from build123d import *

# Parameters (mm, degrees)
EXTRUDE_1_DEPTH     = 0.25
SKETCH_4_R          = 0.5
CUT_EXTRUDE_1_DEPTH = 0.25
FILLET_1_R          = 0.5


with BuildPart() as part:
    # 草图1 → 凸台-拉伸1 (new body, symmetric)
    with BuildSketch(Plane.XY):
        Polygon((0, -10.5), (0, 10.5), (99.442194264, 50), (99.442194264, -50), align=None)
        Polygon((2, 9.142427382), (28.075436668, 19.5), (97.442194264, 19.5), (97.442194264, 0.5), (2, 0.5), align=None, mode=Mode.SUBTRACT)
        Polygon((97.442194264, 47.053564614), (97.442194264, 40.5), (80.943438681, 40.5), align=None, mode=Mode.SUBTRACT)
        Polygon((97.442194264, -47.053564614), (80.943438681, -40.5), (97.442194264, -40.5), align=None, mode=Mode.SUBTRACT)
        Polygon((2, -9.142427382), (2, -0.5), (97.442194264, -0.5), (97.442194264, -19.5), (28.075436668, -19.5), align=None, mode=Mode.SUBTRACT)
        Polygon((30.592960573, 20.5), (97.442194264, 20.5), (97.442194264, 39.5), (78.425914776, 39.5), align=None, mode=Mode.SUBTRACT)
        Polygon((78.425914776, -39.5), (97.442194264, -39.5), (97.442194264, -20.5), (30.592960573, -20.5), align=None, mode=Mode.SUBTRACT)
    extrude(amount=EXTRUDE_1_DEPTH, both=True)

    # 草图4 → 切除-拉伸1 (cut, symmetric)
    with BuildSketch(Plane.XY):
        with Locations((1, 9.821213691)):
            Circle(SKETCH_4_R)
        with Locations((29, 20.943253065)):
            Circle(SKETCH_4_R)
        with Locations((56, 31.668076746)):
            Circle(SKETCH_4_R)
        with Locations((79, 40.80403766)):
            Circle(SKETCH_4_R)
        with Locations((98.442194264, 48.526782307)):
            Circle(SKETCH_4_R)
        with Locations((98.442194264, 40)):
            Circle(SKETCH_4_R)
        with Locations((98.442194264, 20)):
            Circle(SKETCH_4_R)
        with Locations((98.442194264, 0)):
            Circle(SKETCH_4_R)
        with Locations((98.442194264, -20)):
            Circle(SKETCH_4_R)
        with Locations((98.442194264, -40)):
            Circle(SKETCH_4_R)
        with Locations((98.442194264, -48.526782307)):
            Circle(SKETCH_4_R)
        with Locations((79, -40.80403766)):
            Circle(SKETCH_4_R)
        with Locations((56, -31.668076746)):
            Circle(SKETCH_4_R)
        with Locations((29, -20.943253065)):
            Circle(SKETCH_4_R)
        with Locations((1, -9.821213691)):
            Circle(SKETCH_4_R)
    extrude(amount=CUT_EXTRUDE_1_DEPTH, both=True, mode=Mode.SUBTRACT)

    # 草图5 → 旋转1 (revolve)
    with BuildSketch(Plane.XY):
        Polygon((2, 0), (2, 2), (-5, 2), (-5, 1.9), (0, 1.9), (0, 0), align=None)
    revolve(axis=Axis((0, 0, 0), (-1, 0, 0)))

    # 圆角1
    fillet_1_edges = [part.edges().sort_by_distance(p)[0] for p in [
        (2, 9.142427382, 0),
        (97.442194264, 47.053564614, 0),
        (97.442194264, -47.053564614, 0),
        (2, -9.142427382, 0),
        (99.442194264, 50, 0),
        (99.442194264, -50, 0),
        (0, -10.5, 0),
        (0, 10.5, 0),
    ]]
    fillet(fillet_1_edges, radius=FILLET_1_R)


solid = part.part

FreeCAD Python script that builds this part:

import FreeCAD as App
import Part
import Sketcher

V = App.Vector
Q = App.Units.Quantity


def edges_at(feature, points):
    """Names of the edges that pass closest to the given points."""
    edges = feature.Shape.Edges
    near = lambda p: min(range(len(edges)), key=lambda i: edges[i].distToShape(Part.Vertex(*p))[0])
    return sorted({f"Edge{near(p) + 1}" for p in points})

doc = App.newDocument("Part")
body = doc.addObject("PartDesign::Body", "Body")

sketch1 = body.newObject("Sketcher::SketchObject", "Sketch")
sketch1.AttachmentSupport = (doc.getObject("XY_Plane"), [""])
sketch1.MapMode = "FlatFace"
sketch1.addGeometry([
    Part.LineSegment(V(0, 10.5, 0), V(0, -10.5, 0)),
    Part.LineSegment(V(0, -10.5, 0), V(99.442194, -50, 0)),
    Part.LineSegment(V(99.442194, -50, 0), V(99.442194, 50, 0)),
    Part.LineSegment(V(99.442194, 50, 0), V(0, 10.5, 0)),
    Part.LineSegment(V(97.442194, -47.053565, 0), V(80.943439, -40.5, 0)),
    Part.LineSegment(V(80.943439, -40.5, 0), V(97.442194, -40.5, 0)),
    Part.LineSegment(V(97.442194, -40.5, 0), V(97.442194, -47.053565, 0)),
    Part.LineSegment(V(78.425915, -39.5, 0), V(30.592961, -20.5, 0)),
    Part.LineSegment(V(30.592961, -20.5, 0), V(97.442194, -20.5, 0)),
    Part.LineSegment(V(97.442194, -20.5, 0), V(97.442194, -39.5, 0)),
    Part.LineSegment(V(97.442194, -39.5, 0), V(78.425915, -39.5, 0)),
    Part.LineSegment(V(2, -9.142427, 0), V(2, -0.5, 0)),
    Part.LineSegment(V(2, -0.5, 0), V(97.442194, -0.5, 0)),
    Part.LineSegment(V(97.442194, -0.5, 0), V(97.442194, -19.5, 0)),
    Part.LineSegment(V(97.442194, -19.5, 0), V(28.075437, -19.5, 0)),
    Part.LineSegment(V(28.075437, -19.5, 0), V(2, -9.142427, 0)),
    Part.LineSegment(V(97.442194, 47.053565, 0), V(97.442194, 40.5, 0)),
    Part.LineSegment(V(97.442194, 40.5, 0), V(80.943439, 40.5, 0)),
    Part.LineSegment(V(80.943439, 40.5, 0), V(97.442194, 47.053565, 0)),
    Part.LineSegment(V(30.592961, 20.5, 0), V(78.425915, 39.5, 0)),
    Part.LineSegment(V(78.425915, 39.5, 0), V(97.442194, 39.5, 0)),
    Part.LineSegment(V(97.442194, 39.5, 0), V(97.442194, 20.5, 0)),
    Part.LineSegment(V(97.442194, 20.5, 0), V(30.592961, 20.5, 0)),
    Part.LineSegment(V(2, 9.142427, 0), V(28.075437, 19.5, 0)),
    Part.LineSegment(V(28.075437, 19.5, 0), V(97.442194, 19.5, 0)),
    Part.LineSegment(V(97.442194, 19.5, 0), V(97.442194, 0.5, 0)),
    Part.LineSegment(V(97.442194, 0.5, 0), V(2, 0.5, 0)),
    Part.LineSegment(V(2, 0.5, 0), V(2, 9.142427, 0)),
], False)
sketch1.addConstraint([
    Sketcher.Constraint("Coincident", 0, 2, 1, 1),
    Sketcher.Constraint("Coincident", 1, 2, 2, 1),
    Sketcher.Constraint("Coincident", 2, 2, 3, 1),
    Sketcher.Constraint("Coincident", 3, 2, 0, 1),
    Sketcher.Constraint("Coincident", 4, 2, 5, 1),
    Sketcher.Constraint("Coincident", 5, 2, 6, 1),
    Sketcher.Constraint("Coincident", 6, 2, 4, 1),
    Sketcher.Constraint("Coincident", 7, 2, 8, 1),
    Sketcher.Constraint("Coincident", 8, 2, 9, 1),
    Sketcher.Constraint("Coincident", 9, 2, 10, 1),
    Sketcher.Constraint("Coincident", 10, 2, 7, 1),
    Sketcher.Constraint("Coincident", 11, 2, 12, 1),
    Sketcher.Constraint("Coincident", 12, 2, 13, 1),
    Sketcher.Constraint("Coincident", 13, 2, 14, 1),
    Sketcher.Constraint("Coincident", 14, 2, 15, 1),
    Sketcher.Constraint("Coincident", 15, 2, 11, 1),
    Sketcher.Constraint("Coincident", 16, 2, 17, 1),
    Sketcher.Constraint("Coincident", 17, 2, 18, 1),
    Sketcher.Constraint("Coincident", 18, 2, 16, 1),
    Sketcher.Constraint("Coincident", 19, 2, 20, 1),
    Sketcher.Constraint("Coincident", 20, 2, 21, 1),
    Sketcher.Constraint("Coincident", 21, 2, 22, 1),
    Sketcher.Constraint("Coincident", 22, 2, 19, 1),
    Sketcher.Constraint("Coincident", 23, 2, 24, 1),
    Sketcher.Constraint("Coincident", 24, 2, 25, 1),
    Sketcher.Constraint("Coincident", 25, 2, 26, 1),
    Sketcher.Constraint("Coincident", 26, 2, 27, 1),
    Sketcher.Constraint("Coincident", 27, 2, 23, 1),
    Sketcher.Constraint("Vertical", 0),
    Sketcher.Constraint("Vertical", 2),
    Sketcher.Constraint("Horizontal", 5),
    Sketcher.Constraint("Vertical", 6),
    Sketcher.Constraint("Horizontal", 8),
    Sketcher.Constraint("Vertical", 9),
    Sketcher.Constraint("Horizontal", 10),
    Sketcher.Constraint("Vertical", 11),
    Sketcher.Constraint("Horizontal", 12),
    Sketcher.Constraint("Vertical", 13),
    Sketcher.Constraint("Horizontal", 14),
    Sketcher.Constraint("Vertical", 16),
    Sketcher.Constraint("Horizontal", 17),
    Sketcher.Constraint("Horizontal", 20),
    Sketcher.Constraint("Vertical", 21),
    Sketcher.Constraint("Horizontal", 22),
    Sketcher.Constraint("Horizontal", 24),
    Sketcher.Constraint("Vertical", 25),
    Sketcher.Constraint("Horizontal", 26),
    Sketcher.Constraint("Vertical", 27),
    Sketcher.Constraint("Symmetric", 0, 2, 3, 2, -1, 1),
    Sketcher.Constraint("Symmetric", 5, 2, 16, 2, -1),
    Sketcher.Constraint("Symmetric", 10, 2, 19, 2, -1),
    Sketcher.Constraint("Symmetric", 8, 2, 21, 2, -1),
    Sketcher.Constraint("Symmetric", 14, 2, 23, 2, -1),
    Sketcher.Constraint("Symmetric", 12, 2, 25, 2, -1),
    Sketcher.Constraint("Symmetric", 15, 2, 27, 2, -1),
    Sketcher.Constraint("Parallel", 1, 4),
    Sketcher.Constraint("Parallel", 4, 7),
    Sketcher.Constraint("Parallel", 7, 15),
    Sketcher.Constraint("Parallel", 3, 18),
    Sketcher.Constraint("Parallel", 18, 19),
    Sketcher.Constraint("Parallel", 19, 23),
    Sketcher.Constraint("Vertical", 6, 2, 8, 2),
    Sketcher.Constraint("Vertical", 9, 2, 12, 2),
    Sketcher.Constraint("Vertical", 4, 2, 17, 2),
    Sketcher.Constraint("Equal", 9, 13),
    Sketcher.Constraint("DistanceY", 0, 2, 0, 1, Q("21 mm")),
    Sketcher.Constraint("DistanceY", 2, 1, 2, 2, Q("100 mm")),
    Sketcher.Constraint("DistanceY", 9, 2, 9, 1, Q("19 mm")),
    Sketcher.Constraint("Distance", 1, Q("107 mm")),
    Sketcher.Constraint("DistanceX", -1, 1, 11, 2, Q("2 mm")),
    Sketcher.Constraint("DistanceY", 4, 2, 0, 2, Q("30 mm")),
    Sketcher.Constraint("DistanceX", 5, 2, 1, 2, Q("2 mm")),
    Sketcher.Constraint("DistanceY", 7, 2, 0, 2, Q("10 mm")),
    Sketcher.Constraint("DistanceY", 0, 2, 11, 2, Q("10 mm")),
    Sketcher.Constraint("DistanceX", 10, 2, 10, 1, Q("19.016279 mm")),
    Sketcher.Constraint("DistanceX", 5, 1, 5, 2, Q("16.498756 mm")),
    Sketcher.Constraint("DistanceX", 14, 2, 14, 1, Q("69.366758 mm")),
])
pad1 = body.newObject("PartDesign::Pad", "Pad")
pad1.Profile = sketch1
pad1.Length = 0.5
pad1.Midplane = True

sketch2 = body.newObject("Sketcher::SketchObject", "Sketch001")
sketch2.AttachmentSupport = (doc.getObject("XY_Plane"), [""])
sketch2.MapMode = "FlatFace"
sketch2.addGeometry([
    Part.Circle(V(1, 9.8, 0), V(0, 0, 1), 0.5),
    Part.Circle(V(29, 20.9, 0), V(0, 0, 1), 0.5),
    Part.Circle(V(56, 31.7, 0), V(0, 0, 1), 0.5),
    Part.Circle(V(79, 40.8, 0), V(0, 0, 1), 0.5),
    Part.Circle(V(98.4, 48.5, 0), V(0, 0, 1), 0.5),
    Part.Circle(V(98.4, 40, 0), V(0, 0, 1), 0.5),
    Part.Circle(V(98.4, 20, 0), V(0, 0, 1), 0.5),
    Part.Circle(V(98.4, 0, 0), V(0, 0, 1), 0.5),
    Part.Circle(V(98.4, -20, 0), V(0, 0, 1), 0.5),
    Part.Circle(V(98.4, -40, 0), V(0, 0, 1), 0.5),
    Part.Circle(V(98.4, -48.5, 0), V(0, 0, 1), 0.5),
    Part.Circle(V(79, -40.8, 0), V(0, 0, 1), 0.5),
    Part.Circle(V(56, -31.7, 0), V(0, 0, 1), 0.5),
    Part.Circle(V(29, -20.9, 0), V(0, 0, 1), 0.5),
    Part.Circle(V(1, -9.8, 0), V(0, 0, 1), 0.5),
], False)
sketch2.addConstraint([
    Sketcher.Constraint("Equal", 0, 1),
    Sketcher.Constraint("Equal", 1, 2),
    Sketcher.Constraint("Equal", 2, 3),
    Sketcher.Constraint("Equal", 3, 4),
    Sketcher.Constraint("Equal", 4, 5),
    Sketcher.Constraint("Equal", 5, 6),
    Sketcher.Constraint("Equal", 6, 7),
    Sketcher.Constraint("Equal", 7, 8),
    Sketcher.Constraint("Equal", 8, 9),
    Sketcher.Constraint("Equal", 9, 10),
    Sketcher.Constraint("Equal", 10, 11),
    Sketcher.Constraint("Equal", 11, 12),
    Sketcher.Constraint("Equal", 12, 13),
    Sketcher.Constraint("Equal", 13, 14),
    Sketcher.Constraint("Symmetric", 6, 3, 8, 3, -1),
    Sketcher.Constraint("Symmetric", 5, 3, 9, 3, -1),
    Sketcher.Constraint("Symmetric", 4, 3, 10, 3, -1),
    Sketcher.Constraint("Symmetric", 3, 3, 11, 3, -1),
    Sketcher.Constraint("Symmetric", 2, 3, 12, 3, -1),
    Sketcher.Constraint("Symmetric", 1, 3, 13, 3, -1),
    Sketcher.Constraint("Symmetric", 0, 3, 14, 3, -1),
    Sketcher.Constraint("PointOnObject", 7, 3, -1),
    Sketcher.Constraint("Vertical", 4, 3, 5, 3),
    Sketcher.Constraint("Vertical", 5, 3, 6, 3),
    Sketcher.Constraint("Vertical", 6, 3, 7, 3),
    Sketcher.Constraint("Diameter", 0, Q("1 mm")),
    Sketcher.Constraint("DistanceX", -1, 1, 0, 3, Q("1 mm")),
    Sketcher.Constraint("DistanceX", -1, 1, 1, 3, Q("29 mm")),
    Sketcher.Constraint("DistanceX", -1, 1, 2, 3, Q("56 mm")),
    Sketcher.Constraint("DistanceX", -1, 1, 3, 3, Q("79 mm")),
    Sketcher.Constraint("DistanceY", -1, 1, 5, 3, Q("40 mm")),
    Sketcher.Constraint("DistanceY", -1, 1, 6, 3, Q("20 mm")),
    Sketcher.Constraint("DistanceY", 0, 3, 1, 3, Q("11.122039 mm")),
    Sketcher.Constraint("DistanceY", 2, 3, 3, 3, Q("9.135961 mm")),
    Sketcher.Constraint("DistanceY", 1, 3, 4, 3, Q("27.583529 mm")),
    Sketcher.Constraint("DistanceY", 13, 3, 2, 3, Q("52.61133 mm")),
    Sketcher.Constraint("DistanceY", -1, 1, 0, 3, Q("9.821214 mm")),
    Sketcher.Constraint("DistanceX", -1, 1, 4, 3, Q("98.442194 mm")),
])
pocket1 = body.newObject("PartDesign::Pocket", "Pocket")
pocket1.Profile = sketch2
pocket1.Length = 0.5
pocket1.Midplane = True

sketch3 = body.newObject("Sketcher::SketchObject", "Sketch002")
sketch3.AttachmentSupport = (doc.getObject("XY_Plane"), [""])
sketch3.MapMode = "FlatFace"
sketch3.addGeometry([
    Part.LineSegment(V(2, 0, 0), V(2, 2, 0)),
    Part.LineSegment(V(2, 2, 0), V(-5, 2, 0)),
    Part.LineSegment(V(-5, 2, 0), V(-5, 1.9, 0)),
    Part.LineSegment(V(-5, 1.9, 0), V(0, 1.9, 0)),
    Part.LineSegment(V(0, 1.9, 0), V(0, 0, 0)),
    Part.LineSegment(V(0, 0, 0), V(2, 0, 0)),
], False)
sketch3.addConstraint([
    Sketcher.Constraint("Coincident", 0, 2, 1, 1),
    Sketcher.Constraint("Coincident", 1, 2, 2, 1),
    Sketcher.Constraint("Coincident", 2, 2, 3, 1),
    Sketcher.Constraint("Coincident", 3, 2, 4, 1),
    Sketcher.Constraint("Coincident", 4, 2, 5, 1),
    Sketcher.Constraint("Coincident", 5, 2, 0, 1),
    Sketcher.Constraint("Vertical", 0),
    Sketcher.Constraint("Horizontal", 1),
    Sketcher.Constraint("Vertical", 2),
    Sketcher.Constraint("Horizontal", 3),
    Sketcher.Constraint("Vertical", 4),
    Sketcher.Constraint("Horizontal", 5),
    Sketcher.Constraint("Coincident", 4, 2, -1, 1),
    Sketcher.Constraint("Equal", 5, 0),
    Sketcher.Constraint("DistanceX", 1, 2, 1, 1, Q("7 mm")),
    Sketcher.Constraint("DistanceX", 3, 1, 3, 2, Q("5 mm")),
    Sketcher.Constraint("DistanceY", 2, 2, 2, 1, Q("0.1 mm")),
])
revolution = body.newObject("PartDesign::Revolution", "Revolution")
revolution.Profile = sketch3
revolution.ReferenceAxis = (sketch3, ["H_Axis"])
revolution.Angle = 360
doc.recompute()

fillet = body.newObject("PartDesign::Fillet", "Fillet")
fillet.Base = (revolution, edges_at(revolution, [
    (2, 9.142, 0),
    (97.442, 47.054, 0),
    (97.442, -47.054, 0),
    (2, -9.142, 0),
    (99.442, 50, 0),
    (99.442, -50, 0),
    (0, -10.5, 0),
    (0, 10.5, 0),
]))
fillet.Radius = 0.5

doc.recompute()
